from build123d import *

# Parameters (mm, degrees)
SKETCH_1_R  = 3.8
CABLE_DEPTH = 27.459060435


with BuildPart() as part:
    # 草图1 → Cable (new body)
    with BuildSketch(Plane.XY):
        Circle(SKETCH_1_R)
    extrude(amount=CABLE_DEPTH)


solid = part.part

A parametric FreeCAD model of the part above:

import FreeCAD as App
import Part
import Sketcher

doc = App.newDocument("Part")
body = doc.addObject("PartDesign::Body", "Body")

# Sketch on XY plane
sketch1 = body.newObject("Sketcher::SketchObject", "Sketch")
sketch1.AttachmentSupport = (doc.getObject("XY_Plane"), [""])
sketch1.MapMode = "FlatFace"
sketch1.addGeometry(Part.Circle(App.Vector(0, 0, 0), App.Vector(0, 0, 1), 3.8), False)
sketch1.addConstraint(Sketcher.Constraint("Coincident", 0, 3, -1, 1))
sketch1.addConstraint(Sketcher.Constraint("Diameter", 0, 7.6))
pad1 = body.newObject("PartDesign::Pad", "Pad")
pad1.Profile = sketch1
pad1.Length = 27.45906

doc.recompute()
